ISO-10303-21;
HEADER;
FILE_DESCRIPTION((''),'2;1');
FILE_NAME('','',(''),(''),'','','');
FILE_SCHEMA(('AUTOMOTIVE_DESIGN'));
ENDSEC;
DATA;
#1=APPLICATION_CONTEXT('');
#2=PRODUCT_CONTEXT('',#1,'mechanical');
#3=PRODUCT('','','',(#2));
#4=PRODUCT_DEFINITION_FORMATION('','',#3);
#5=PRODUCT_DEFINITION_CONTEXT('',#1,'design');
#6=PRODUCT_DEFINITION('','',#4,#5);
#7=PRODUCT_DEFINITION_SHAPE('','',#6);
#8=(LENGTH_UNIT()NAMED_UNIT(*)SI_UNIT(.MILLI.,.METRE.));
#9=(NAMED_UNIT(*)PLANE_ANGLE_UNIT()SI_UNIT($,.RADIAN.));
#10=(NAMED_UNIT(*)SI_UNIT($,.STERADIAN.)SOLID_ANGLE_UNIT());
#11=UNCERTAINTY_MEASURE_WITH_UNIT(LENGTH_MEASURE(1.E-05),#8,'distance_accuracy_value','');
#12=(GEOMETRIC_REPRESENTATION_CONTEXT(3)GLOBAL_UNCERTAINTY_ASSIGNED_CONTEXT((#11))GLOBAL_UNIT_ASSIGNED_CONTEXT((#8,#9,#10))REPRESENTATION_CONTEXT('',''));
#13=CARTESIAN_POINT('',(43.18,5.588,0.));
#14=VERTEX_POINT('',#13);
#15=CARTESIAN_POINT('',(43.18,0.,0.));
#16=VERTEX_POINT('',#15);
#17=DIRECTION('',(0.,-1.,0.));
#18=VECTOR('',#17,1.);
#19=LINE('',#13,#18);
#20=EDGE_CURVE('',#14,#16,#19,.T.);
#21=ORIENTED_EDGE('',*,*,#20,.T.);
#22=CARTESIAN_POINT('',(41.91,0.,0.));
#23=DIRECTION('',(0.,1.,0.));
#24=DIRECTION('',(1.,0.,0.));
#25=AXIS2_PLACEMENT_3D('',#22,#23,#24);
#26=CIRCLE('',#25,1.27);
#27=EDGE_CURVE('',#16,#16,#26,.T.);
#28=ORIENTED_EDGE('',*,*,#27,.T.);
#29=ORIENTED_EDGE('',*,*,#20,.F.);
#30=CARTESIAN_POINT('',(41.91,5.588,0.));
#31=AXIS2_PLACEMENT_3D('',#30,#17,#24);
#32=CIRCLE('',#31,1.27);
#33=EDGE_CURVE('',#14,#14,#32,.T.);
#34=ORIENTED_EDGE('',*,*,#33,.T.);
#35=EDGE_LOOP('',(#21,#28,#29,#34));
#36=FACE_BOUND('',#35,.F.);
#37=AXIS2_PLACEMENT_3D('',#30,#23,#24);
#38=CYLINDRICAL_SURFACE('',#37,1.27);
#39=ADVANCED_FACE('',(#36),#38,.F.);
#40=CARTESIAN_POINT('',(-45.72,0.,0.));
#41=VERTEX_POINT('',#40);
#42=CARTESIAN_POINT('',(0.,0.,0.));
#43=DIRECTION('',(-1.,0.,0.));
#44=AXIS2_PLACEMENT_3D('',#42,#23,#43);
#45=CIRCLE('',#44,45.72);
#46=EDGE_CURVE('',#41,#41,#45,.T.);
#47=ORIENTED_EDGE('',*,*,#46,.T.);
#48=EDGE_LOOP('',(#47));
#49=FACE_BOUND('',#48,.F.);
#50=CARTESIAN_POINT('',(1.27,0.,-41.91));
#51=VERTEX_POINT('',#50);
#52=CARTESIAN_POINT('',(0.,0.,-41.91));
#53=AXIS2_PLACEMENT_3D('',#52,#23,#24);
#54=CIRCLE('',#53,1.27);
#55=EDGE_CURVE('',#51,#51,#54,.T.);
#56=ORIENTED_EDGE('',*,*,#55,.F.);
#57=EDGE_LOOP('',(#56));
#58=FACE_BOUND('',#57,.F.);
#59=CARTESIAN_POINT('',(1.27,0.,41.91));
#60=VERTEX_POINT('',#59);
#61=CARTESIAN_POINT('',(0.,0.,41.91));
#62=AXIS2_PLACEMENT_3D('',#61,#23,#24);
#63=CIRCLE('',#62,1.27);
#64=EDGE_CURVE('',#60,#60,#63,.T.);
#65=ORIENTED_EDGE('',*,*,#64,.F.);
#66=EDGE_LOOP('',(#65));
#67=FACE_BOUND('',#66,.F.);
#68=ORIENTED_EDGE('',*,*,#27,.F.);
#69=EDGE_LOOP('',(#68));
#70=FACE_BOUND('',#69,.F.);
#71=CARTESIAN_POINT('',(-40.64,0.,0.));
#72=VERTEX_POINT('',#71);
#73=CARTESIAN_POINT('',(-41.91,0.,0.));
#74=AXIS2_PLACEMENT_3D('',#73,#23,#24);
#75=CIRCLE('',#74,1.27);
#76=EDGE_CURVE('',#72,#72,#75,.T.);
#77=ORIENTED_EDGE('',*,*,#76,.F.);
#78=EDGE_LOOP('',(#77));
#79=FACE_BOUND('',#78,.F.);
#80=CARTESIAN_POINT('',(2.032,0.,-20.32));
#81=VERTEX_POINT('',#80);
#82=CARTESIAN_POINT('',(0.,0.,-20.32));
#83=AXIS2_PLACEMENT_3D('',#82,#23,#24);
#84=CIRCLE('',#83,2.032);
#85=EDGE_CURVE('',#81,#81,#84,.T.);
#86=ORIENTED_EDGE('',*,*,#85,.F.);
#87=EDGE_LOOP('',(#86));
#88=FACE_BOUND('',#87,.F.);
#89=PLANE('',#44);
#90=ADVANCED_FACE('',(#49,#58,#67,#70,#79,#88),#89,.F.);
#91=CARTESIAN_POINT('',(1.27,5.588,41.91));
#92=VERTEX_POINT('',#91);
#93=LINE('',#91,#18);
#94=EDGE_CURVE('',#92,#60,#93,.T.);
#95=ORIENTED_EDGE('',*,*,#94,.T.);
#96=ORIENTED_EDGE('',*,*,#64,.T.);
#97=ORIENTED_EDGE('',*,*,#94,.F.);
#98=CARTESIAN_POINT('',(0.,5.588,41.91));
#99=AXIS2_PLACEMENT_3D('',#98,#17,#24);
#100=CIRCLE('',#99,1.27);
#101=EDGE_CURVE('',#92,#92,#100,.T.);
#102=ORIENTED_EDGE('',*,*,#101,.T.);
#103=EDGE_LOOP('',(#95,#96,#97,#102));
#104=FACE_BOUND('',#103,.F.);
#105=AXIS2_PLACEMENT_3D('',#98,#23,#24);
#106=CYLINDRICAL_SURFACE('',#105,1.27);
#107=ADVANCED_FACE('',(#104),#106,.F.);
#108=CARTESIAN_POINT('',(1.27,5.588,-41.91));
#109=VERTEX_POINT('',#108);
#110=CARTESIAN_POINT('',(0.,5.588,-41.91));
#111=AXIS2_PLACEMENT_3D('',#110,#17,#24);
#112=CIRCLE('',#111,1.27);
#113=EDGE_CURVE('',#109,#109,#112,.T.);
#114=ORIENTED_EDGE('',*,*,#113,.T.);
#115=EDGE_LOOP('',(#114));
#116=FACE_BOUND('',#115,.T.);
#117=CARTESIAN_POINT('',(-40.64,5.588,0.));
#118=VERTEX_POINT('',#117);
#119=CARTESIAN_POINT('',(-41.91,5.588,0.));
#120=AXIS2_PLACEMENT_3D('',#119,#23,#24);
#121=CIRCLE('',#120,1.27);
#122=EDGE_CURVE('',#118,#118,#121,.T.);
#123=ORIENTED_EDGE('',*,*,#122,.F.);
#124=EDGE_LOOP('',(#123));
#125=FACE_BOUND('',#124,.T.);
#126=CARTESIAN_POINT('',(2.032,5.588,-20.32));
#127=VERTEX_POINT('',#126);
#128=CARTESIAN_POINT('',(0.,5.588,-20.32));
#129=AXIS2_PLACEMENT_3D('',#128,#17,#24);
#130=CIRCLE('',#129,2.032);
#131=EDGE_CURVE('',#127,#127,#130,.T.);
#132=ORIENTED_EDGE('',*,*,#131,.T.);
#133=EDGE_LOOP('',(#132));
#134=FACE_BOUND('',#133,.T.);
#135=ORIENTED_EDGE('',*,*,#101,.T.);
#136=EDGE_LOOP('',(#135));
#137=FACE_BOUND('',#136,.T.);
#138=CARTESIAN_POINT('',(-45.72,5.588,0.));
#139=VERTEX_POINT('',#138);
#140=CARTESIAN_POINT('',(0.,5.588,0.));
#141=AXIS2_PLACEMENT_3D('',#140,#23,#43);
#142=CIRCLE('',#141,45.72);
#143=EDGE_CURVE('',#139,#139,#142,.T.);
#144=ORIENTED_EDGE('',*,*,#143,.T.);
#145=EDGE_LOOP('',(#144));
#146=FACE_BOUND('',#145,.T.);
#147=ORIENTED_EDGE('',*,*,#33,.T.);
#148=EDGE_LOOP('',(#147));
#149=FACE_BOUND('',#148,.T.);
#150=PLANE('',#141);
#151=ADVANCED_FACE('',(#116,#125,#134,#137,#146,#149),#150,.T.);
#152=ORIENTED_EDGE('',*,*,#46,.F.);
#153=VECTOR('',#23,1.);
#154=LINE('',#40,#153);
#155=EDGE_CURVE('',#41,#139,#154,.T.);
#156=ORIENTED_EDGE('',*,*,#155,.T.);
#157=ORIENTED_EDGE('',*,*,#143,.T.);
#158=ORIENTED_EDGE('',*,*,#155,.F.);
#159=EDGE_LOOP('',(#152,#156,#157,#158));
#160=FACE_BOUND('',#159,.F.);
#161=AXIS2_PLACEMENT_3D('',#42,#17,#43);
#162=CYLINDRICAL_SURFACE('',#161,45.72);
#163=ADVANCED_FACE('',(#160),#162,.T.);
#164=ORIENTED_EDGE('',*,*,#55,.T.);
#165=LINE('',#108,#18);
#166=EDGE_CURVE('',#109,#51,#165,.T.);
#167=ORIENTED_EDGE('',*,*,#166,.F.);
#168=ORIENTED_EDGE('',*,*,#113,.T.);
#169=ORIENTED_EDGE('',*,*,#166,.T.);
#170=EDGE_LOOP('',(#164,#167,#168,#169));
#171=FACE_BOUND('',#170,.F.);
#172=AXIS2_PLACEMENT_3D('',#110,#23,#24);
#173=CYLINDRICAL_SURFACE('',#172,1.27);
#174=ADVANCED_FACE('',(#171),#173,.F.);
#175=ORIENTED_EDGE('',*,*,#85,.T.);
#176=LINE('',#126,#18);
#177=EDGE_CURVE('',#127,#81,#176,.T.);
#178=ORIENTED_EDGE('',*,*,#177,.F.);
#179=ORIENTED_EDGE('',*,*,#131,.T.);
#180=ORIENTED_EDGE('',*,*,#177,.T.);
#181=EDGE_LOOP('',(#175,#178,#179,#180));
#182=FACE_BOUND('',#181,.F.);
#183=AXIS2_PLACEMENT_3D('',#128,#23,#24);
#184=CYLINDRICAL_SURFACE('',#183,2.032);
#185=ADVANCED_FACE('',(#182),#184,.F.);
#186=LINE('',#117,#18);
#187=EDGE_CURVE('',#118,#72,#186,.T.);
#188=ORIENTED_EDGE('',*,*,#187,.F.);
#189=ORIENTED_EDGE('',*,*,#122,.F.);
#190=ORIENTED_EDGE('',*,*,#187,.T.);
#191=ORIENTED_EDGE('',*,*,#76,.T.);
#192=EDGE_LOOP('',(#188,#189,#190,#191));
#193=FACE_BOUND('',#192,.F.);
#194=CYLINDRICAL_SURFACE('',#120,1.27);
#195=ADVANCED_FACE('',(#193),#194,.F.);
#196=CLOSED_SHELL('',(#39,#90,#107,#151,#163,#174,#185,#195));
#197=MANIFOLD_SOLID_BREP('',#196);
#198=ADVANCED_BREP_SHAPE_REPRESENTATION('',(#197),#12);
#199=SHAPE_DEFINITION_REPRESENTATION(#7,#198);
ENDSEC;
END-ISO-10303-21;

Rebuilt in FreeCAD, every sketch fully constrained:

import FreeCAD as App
import Part
import Sketcher

V = App.Vector
Q = App.Units.Quantity

doc = App.newDocument("Part")
body = doc.addObject("PartDesign::Body", "Body")

# Sketch on XZ plane
sketch1 = body.newObject("Sketcher::SketchObject", "Sketch")
sketch1.AttachmentSupport = (doc.getObject("XZ_Plane"), [""])
sketch1.MapMode = "FlatFace"
sketch1.addGeometry(Part.Circle(V(0, 0, 0), V(0, 0, 1), 46), False)
sketch1.addConstraint([
    Sketcher.Constraint("Coincident", 0, 3, -1, 1),
    Sketcher.Constraint("Diameter", 0, Q("3.6 in")),
])
pad1 = body.newObject("PartDesign::Pad", "Pad")
pad1.Profile = sketch1
pad1.Length = Q("0.22 in")
pad1.Reversed = True

# Sketch on XZ plane
sketch2 = body.newObject("Sketcher::SketchObject", "Sketch001")
sketch2.AttachmentSupport = (doc.getObject("XZ_Plane"), [""])
sketch2.MapMode = "FlatFace"
sketch2.AttachmentOffset = App.Placement(V(0, 0, -0.22 * 25.4), App.Rotation())
sketch2.addGeometry([
    Part.Circle(V(0, 41.9, 0), V(0, 0, 1), 1.3),  # 0
    Part.Circle(V(-41.9, 0, 0), V(0, 0, 1), 1.3),  # 1
    Part.Circle(V(0, -41.9, 0), V(0, 0, 1), 1.3),  # 2
    Part.Circle(V(41.9, 0, 0), V(0, 0, 1), 1.3),  # 3
    Part.Circle(V(0, -20.3, 0), V(0, 0, 1), 2),  # 4
], False)
sketch2.addConstraint([
    Sketcher.Constraint("Equal", 0, 1),
    Sketcher.Constraint("Equal", 1, 2),
    Sketcher.Constraint("Equal", 2, 3),
    Sketcher.Constraint("Symmetric", 0, 3, 2, 3, -1, 1),
    Sketcher.Constraint("Symmetric", 1, 3, 3, 3, -1, 1),
    Sketcher.Constraint("PointOnObject", 0, 3, -2),
    Sketcher.Constraint("PointOnObject", 1, 3, -1),
    Sketcher.Constraint("PointOnObject", 4, 3, -2),
    Sketcher.Constraint("Diameter", 0, Q("0.1 in")),
    Sketcher.Constraint("Diameter", 4, Q("0.16 in")),
    Sketcher.Constraint("DistanceY", 4, 3, -1, 1, Q("0.8 in")),
    Sketcher.Constraint("DistanceY", -1, 1, 0, 3, Q("1.65 in")),
    Sketcher.Constraint("DistanceX", 1, 3, -1, 1, Q("1.65 in")),
])
pocket1 = body.newObject("PartDesign::Pocket", "Pocket")
pocket1.Profile = sketch2
pocket1.Length = Q("0.22 in")
pocket1.Reversed = True

doc.recompute()
